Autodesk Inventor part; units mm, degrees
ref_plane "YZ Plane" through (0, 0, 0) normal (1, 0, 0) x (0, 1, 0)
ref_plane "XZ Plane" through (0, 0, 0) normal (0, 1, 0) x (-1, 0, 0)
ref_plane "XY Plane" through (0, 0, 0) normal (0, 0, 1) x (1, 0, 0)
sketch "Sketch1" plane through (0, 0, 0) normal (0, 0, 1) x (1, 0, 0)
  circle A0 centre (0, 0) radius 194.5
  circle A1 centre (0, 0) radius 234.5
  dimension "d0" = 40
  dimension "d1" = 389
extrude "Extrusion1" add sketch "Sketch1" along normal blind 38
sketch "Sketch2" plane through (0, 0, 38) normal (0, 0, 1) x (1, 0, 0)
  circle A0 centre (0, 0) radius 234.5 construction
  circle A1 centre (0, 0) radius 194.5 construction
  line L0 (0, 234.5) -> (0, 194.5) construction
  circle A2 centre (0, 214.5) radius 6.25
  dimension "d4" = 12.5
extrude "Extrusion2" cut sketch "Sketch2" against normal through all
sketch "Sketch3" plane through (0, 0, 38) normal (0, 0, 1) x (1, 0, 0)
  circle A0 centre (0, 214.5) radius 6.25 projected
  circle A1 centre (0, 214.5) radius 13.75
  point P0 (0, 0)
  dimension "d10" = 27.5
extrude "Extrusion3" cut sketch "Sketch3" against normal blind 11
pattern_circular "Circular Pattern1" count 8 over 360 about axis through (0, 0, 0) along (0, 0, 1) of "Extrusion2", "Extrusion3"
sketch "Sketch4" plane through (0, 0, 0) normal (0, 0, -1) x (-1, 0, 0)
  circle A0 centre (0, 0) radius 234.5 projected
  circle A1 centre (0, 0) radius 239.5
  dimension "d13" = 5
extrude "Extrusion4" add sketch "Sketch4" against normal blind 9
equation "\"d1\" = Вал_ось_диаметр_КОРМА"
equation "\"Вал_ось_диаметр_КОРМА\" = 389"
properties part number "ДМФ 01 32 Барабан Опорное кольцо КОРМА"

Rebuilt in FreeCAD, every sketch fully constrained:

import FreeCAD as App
import Part
import Sketcher
from FreeCAD import Vector
Q = App.Units.Quantity

doc = App.newDocument("Part")
params = doc.addObject("Spreadsheet::Sheet", "Params")
for row, (alias, value) in enumerate([
    ("sketch1_diameter", "389 mm"),
    ("sketch1_diameter2", "469 mm"),
    ("pad1_length", "38 mm"),
    ("sketch2_diameter", "12.5 mm"),
    ("sketch3_diameter", "27.5 mm"),
    ("sketch3_diameter2", "12.5 mm"),
    ("pocket2_length", "11 mm"),
    ("sketch4_diameter", "479 mm"),
    ("sketch4_diameter2", "469 mm"),
    ("pad2_length", "9 mm"),
], start=1):
    params.set(f"A{row}", alias)
    params.set(f"B{row}", "=" + value)
    params.setAlias(f"B{row}", alias)

body = doc.addObject("PartDesign::Body", "Body")

sketch1 = body.newObject("Sketcher::SketchObject", "Sketch")
sketch1.AttachmentSupport = (doc.getObject("XY_Plane"), [""])
sketch1.MapMode = "FlatFace"
sketch1.addGeometry(Part.Circle(Vector(0, 0, 0), Vector(0, 0, 1), 234), False)
sketch1.addGeometry(Part.Circle(Vector(0, 0, 0), Vector(0, 0, 1), 194), False)
sketch1.addConstraint(Sketcher.Constraint("Coincident", 0, 3, -1, 1))
sketch1.addConstraint(Sketcher.Constraint("Coincident", 1, 3, -1, 1))
sketch1.addConstraint(Sketcher.Constraint("Diameter", 1, Q("389 mm")))
sketch1.addConstraint(Sketcher.Constraint("Diameter", 0, Q("469 mm")))
sketch1.setExpression("Constraints[2]", "Params.sketch1_diameter")
sketch1.setExpression("Constraints[3]", "Params.sketch1_diameter2")
pad1 = body.newObject("PartDesign::Pad", "Pad")
pad1.Profile = sketch1
pad1.setExpression("Length", "Params.pad1_length")

sketch2 = body.newObject("Sketcher::SketchObject", "Sketch001")
sketch2.AttachmentSupport = (doc.getObject("XY_Plane"), [""])
sketch2.MapMode = "FlatFace"
sketch2.AttachmentOffset = App.Placement(Vector(0, 0, 38), App.Rotation())
sketch2.addGeometry(Part.Circle(Vector(0, 214, 0), Vector(0, 0, 1), 6), False)
sketch2.addConstraint(Sketcher.Constraint("PointOnObject", 0, 3, -2))
sketch2.addConstraint(Sketcher.Constraint("Diameter", 0, Q("12.5 mm")))
sketch2.addConstraint(Sketcher.Constraint("DistanceY", -1, 1, 0, 3, Q("214.5 mm")))
sketch2.setExpression("Constraints[1]", "Params.sketch2_diameter")
pocket1 = body.newObject("PartDesign::Pocket", "Pocket")
pocket1.Profile = sketch2
pocket1.Type = "ThroughAll"

sketch3 = body.newObject("Sketcher::SketchObject", "Sketch002")
sketch3.AttachmentSupport = (doc.getObject("XY_Plane"), [""])
sketch3.MapMode = "FlatFace"
sketch3.AttachmentOffset = App.Placement(Vector(0, 0, 38), App.Rotation())
sketch3.addGeometry(Part.Circle(Vector(0, 214, 0), Vector(0, 0, 1), 14), False)
sketch3.addGeometry(Part.Circle(Vector(0, 214, 0), Vector(0, 0, 1), 6), False)
sketch3.addConstraint(Sketcher.Constraint("Coincident", 1, 3, 0, 3))
sketch3.addConstraint(Sketcher.Constraint("PointOnObject", 0, 3, -2))
sketch3.addConstraint(Sketcher.Constraint("Diameter", 0, Q("27.5 mm")))
sketch3.addConstraint(Sketcher.Constraint("Diameter", 1, Q("12.5 mm")))
sketch3.addConstraint(Sketcher.Constraint("DistanceY", -1, 1, 0, 3, Q("214.5 mm")))
sketch3.setExpression("Constraints[2]", "Params.sketch3_diameter")
sketch3.setExpression("Constraints[3]", "Params.sketch3_diameter2")
pocket2 = body.newObject("PartDesign::Pocket", "Pocket001")
pocket2.Profile = sketch3
pocket2.setExpression("Length", "Params.pocket2_length")
doc.recompute()

polarpattern = body.newObject("PartDesign::PolarPattern", "PolarPattern")
polarpattern.Originals = [pocket1, pocket2]
polarpattern.Axis = (doc.getObject("Z_Axis"), [""])
polarpattern.Angle = 360
polarpattern.Occurrences = 8
body.Tip = polarpattern

sketch4 = body.newObject("Sketcher::SketchObject", "Sketch003")
sketch4.AttachmentSupport = (doc.getObject("XY_Plane"), [""])
sketch4.MapMode = "FlatFace"
sketch4.addGeometry(Part.Circle(Vector(0, 0, 0), Vector(0, 0, 1), 240), False)
sketch4.addGeometry(Part.Circle(Vector(0, 0, 0), Vector(0, 0, 1), 234), False)
sketch4.addConstraint(Sketcher.Constraint("Coincident", 0, 3, -1, 1))
sketch4.addConstraint(Sketcher.Constraint("Coincident", 1, 3, -1, 1))
sketch4.addConstraint(Sketcher.Constraint("Diameter", 0, Q("479 mm")))
sketch4.addConstraint(Sketcher.Constraint("Diameter", 1, Q("469 mm")))
sketch4.setExpression("Constraints[2]", "Params.sketch4_diameter")
sketch4.setExpression("Constraints[3]", "Params.sketch4_diameter2")
pad2 = body.newObject("PartDesign::Pad", "Pad001")
pad2.Profile = sketch4
pad2.setExpression("Length", "Params.pad2_length")

doc.recompute()
